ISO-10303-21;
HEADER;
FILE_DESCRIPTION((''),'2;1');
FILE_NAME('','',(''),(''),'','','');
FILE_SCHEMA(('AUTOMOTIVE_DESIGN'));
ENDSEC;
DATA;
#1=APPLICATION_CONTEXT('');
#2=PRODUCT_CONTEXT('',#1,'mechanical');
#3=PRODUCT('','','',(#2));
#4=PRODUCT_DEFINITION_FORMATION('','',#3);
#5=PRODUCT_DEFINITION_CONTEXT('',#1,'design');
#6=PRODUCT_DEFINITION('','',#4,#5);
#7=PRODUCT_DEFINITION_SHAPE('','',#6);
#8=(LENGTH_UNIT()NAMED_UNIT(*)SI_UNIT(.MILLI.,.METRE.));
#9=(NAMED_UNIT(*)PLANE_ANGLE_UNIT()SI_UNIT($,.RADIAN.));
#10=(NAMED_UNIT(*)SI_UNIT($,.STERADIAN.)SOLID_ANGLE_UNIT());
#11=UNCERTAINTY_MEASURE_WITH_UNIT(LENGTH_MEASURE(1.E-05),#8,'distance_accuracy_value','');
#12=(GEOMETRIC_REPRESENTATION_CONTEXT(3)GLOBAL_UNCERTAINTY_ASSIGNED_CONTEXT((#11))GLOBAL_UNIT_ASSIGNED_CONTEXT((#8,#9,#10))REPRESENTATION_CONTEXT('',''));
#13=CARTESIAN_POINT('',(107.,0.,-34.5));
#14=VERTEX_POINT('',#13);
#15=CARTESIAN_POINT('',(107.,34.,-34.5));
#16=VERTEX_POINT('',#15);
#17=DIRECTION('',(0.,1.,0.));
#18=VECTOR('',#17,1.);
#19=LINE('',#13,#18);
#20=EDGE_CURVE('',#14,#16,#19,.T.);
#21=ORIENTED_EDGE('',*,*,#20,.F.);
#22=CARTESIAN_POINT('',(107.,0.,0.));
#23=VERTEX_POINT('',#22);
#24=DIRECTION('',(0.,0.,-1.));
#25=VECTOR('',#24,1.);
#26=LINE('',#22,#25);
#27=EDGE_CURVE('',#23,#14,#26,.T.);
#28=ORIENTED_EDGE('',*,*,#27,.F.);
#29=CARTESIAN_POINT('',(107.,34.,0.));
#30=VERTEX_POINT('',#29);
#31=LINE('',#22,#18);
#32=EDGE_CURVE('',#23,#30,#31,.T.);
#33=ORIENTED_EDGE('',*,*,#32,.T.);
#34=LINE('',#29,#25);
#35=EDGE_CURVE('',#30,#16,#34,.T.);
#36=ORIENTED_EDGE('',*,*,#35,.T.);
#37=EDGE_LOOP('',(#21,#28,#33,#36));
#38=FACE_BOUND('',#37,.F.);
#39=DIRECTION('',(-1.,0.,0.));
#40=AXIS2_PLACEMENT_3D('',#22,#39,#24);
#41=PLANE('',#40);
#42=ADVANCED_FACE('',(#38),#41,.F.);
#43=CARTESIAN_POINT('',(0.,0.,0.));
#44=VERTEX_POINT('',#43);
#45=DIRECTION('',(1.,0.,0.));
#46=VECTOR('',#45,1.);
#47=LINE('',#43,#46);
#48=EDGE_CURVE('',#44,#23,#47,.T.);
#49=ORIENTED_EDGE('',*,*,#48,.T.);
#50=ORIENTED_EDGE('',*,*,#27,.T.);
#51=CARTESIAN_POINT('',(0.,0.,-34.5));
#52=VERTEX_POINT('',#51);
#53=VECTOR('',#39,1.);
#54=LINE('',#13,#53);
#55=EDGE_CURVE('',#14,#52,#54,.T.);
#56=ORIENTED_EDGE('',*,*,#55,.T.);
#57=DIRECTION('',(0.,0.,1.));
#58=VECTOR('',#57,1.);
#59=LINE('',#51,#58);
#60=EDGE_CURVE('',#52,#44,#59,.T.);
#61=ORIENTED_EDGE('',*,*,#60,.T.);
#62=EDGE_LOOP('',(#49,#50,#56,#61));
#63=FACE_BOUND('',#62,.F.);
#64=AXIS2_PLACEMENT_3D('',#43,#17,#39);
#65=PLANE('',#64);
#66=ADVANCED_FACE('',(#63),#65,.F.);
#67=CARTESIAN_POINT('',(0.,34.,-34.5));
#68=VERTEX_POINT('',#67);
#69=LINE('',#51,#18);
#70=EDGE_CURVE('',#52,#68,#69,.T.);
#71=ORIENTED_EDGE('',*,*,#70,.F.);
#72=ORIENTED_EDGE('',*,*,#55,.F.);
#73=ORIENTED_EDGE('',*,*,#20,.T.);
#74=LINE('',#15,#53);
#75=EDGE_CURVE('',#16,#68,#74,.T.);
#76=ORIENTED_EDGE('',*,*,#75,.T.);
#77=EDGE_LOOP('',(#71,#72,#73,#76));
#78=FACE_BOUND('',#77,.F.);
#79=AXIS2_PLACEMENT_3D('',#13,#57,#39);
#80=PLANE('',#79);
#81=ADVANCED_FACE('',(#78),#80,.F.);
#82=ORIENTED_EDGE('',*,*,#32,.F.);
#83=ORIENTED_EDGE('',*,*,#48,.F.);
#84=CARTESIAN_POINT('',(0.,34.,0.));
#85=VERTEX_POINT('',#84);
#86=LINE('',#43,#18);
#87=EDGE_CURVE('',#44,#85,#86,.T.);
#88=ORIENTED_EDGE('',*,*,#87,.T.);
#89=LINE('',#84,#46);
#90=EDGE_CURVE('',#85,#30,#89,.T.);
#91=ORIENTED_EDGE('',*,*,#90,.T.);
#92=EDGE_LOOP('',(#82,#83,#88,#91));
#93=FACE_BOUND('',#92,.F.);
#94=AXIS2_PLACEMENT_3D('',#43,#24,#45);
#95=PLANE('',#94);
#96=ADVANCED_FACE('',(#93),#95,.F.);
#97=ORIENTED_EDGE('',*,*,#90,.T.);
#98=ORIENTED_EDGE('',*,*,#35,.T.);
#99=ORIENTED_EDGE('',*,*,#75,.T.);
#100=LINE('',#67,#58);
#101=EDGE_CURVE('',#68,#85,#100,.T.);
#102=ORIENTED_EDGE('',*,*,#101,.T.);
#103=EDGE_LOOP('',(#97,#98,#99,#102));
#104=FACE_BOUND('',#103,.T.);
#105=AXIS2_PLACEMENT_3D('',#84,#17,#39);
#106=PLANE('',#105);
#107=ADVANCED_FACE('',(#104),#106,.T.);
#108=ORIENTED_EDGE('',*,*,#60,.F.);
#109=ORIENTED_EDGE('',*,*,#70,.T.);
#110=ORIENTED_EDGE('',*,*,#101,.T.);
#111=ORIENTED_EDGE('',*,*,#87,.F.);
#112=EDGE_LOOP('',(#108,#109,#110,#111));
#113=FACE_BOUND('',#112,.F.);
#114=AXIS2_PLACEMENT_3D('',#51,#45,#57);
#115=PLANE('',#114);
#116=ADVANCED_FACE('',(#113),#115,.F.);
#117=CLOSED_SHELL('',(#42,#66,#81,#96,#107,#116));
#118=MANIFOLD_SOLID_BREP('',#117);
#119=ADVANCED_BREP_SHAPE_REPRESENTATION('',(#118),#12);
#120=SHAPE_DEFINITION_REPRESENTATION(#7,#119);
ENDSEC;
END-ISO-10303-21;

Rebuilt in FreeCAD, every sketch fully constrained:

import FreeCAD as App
import Part
import Sketcher

V = App.Vector


def add_polygon(sketch, points):
    """Adds a closed chain of lines whose ends are joined by coincident constraints."""
    first, n = sketch.GeometryCount, len(points)
    for a, b in zip(points, points[1:] + points[:1]):
        sketch.addGeometry(Part.LineSegment(App.Vector(*a, 0), App.Vector(*b, 0)), False)
    for i in range(n):
        sketch.addConstraint(Sketcher.Constraint("Coincident", first + i, 2, first + (i + 1) % n, 1))

doc = App.newDocument("Part")
body = doc.addObject("PartDesign::Body", "Body")

# Sketch on XZ plane
sketch1 = body.newObject("Sketcher::SketchObject", "Sketch")
sketch1.AttachmentSupport = (doc.getObject("XZ_Plane"), [""])
sketch1.MapMode = "FlatFace"
add_polygon(sketch1, [(0, -34), (0, 0), (107, 0), (107, -34)])  # lines 0-3
sketch1.addConstraint(Sketcher.Constraint("Vertical", 0))
sketch1.addConstraint(Sketcher.Constraint("Horizontal", 1))
sketch1.addConstraint(Sketcher.Constraint("Vertical", 2))
sketch1.addConstraint(Sketcher.Constraint("Horizontal", 3))
sketch1.addConstraint(Sketcher.Constraint("Coincident", 0, 2, -1, 1))
sketch1.addConstraint(Sketcher.Constraint("DistanceX", 1, 1, 1, 2, 107.0))
sketch1.addConstraint(Sketcher.Constraint("DistanceY", 0, 1, 0, 2, 34.5))
pad1 = body.newObject("PartDesign::Pad", "Pad")
pad1.Profile = sketch1
pad1.Length = 34
pad1.Reversed = True

doc.recompute()
